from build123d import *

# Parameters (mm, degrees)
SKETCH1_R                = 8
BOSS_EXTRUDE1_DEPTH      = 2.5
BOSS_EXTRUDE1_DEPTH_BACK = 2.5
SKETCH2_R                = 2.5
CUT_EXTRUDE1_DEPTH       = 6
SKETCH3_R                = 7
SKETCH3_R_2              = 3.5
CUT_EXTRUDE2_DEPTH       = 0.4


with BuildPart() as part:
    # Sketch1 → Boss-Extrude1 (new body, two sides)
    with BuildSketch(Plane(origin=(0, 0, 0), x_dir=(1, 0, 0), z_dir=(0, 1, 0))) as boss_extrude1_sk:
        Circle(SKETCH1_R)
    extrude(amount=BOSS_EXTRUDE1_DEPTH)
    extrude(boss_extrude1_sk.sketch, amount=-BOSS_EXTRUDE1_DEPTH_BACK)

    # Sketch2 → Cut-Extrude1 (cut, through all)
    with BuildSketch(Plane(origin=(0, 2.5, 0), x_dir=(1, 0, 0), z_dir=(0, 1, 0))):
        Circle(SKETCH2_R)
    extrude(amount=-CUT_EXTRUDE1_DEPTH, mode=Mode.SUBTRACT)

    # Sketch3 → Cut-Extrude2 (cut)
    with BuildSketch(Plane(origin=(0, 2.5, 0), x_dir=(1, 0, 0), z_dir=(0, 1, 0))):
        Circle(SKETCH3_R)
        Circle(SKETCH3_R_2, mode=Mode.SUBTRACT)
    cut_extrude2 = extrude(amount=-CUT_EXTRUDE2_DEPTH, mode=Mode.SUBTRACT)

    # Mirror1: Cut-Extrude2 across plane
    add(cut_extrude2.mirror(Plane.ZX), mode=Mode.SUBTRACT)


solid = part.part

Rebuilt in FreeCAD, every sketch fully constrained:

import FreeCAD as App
import Part
import Sketcher

V = App.Vector
Q = App.Units.Quantity

doc = App.newDocument("Part")
params = doc.addObject("Spreadsheet::Sheet", "Params")
for row, (alias, value) in enumerate([
    ("sketch1_diameter", "16 mm"),
    ("pad1_length", "2.5 mm"),
    ("pad1_length2", "2.5 mm"),
    ("sketch2_diameter", "5 mm"),
    ("sketch3_diameter", "14 mm"),
    ("sketch3_diameter2", "7 mm"),
    ("pocket2_length", "0.4 mm"),
], start=1):
    params.set(f"A{row}", alias)
    params.set(f"B{row}", "=" + value)
    params.setAlias(f"B{row}", alias)

body = doc.addObject("PartDesign::Body", "Body")

sketch1 = body.newObject("Sketcher::SketchObject", "Sketch")
sketch1.AttachmentSupport = (doc.getObject("XZ_Plane"), [""])
sketch1.MapMode = "FlatFace"
sketch1.addGeometry(Part.Circle(V(0, 0, 0), V(0, 0, 1), 8), False)
sketch1.addConstraint(Sketcher.Constraint("Coincident", 0, 3, -1, 1))
sketch1.addConstraint(Sketcher.Constraint("Diameter", 0, Q("16 mm")))
sketch1.setExpression("Constraints[1]", "Params.sketch1_diameter")
pad1 = body.newObject("PartDesign::Pad", "Pad")
pad1.Profile = sketch1
pad1.Type = "TwoLengths"
pad1.setExpression("Length", "Params.pad1_length")
pad1.setExpression("Length2", "Params.pad1_length2")
pad1.Reversed = True

sketch2 = body.newObject("Sketcher::SketchObject", "Sketch001")
sketch2.AttachmentSupport = (doc.getObject("XZ_Plane"), [""])
sketch2.MapMode = "FlatFace"
sketch2.AttachmentOffset = App.Placement(V(0, 0, -2.5), App.Rotation())
sketch2.addGeometry(Part.Circle(V(0, 0, 0), V(0, 0, 1), 2.5), False)
sketch2.addConstraint(Sketcher.Constraint("Coincident", 0, 3, -1, 1))
sketch2.addConstraint(Sketcher.Constraint("Diameter", 0, Q("5 mm")))
sketch2.setExpression("Constraints[1]", "Params.sketch2_diameter")
pocket1 = body.newObject("PartDesign::Pocket", "Pocket")
pocket1.Profile = sketch2
pocket1.Type = "ThroughAll"
pocket1.Reversed = True

sketch3 = body.newObject("Sketcher::SketchObject", "Sketch002")
sketch3.AttachmentSupport = (doc.getObject("XZ_Plane"), [""])
sketch3.MapMode = "FlatFace"
sketch3.AttachmentOffset = App.Placement(V(0, 0, -2.5), App.Rotation())
sketch3.addGeometry(Part.Circle(V(0, 0, 0), V(0, 0, 1), 7), False)
sketch3.addGeometry(Part.Circle(V(0, 0, 0), V(0, 0, 1), 3.5), False)
sketch3.addConstraint(Sketcher.Constraint("Coincident", 0, 3, -1, 1))
sketch3.addConstraint(Sketcher.Constraint("Coincident", 1, 3, -1, 1))
sketch3.addConstraint(Sketcher.Constraint("Diameter", 0, Q("14 mm")))
sketch3.addConstraint(Sketcher.Constraint("Diameter", 1, Q("7 mm")))
sketch3.setExpression("Constraints[2]", "Params.sketch3_diameter")
sketch3.setExpression("Constraints[3]", "Params.sketch3_diameter2")
pocket2 = body.newObject("PartDesign::Pocket", "Pocket001")
pocket2.Profile = sketch3
pocket2.setExpression("Length", "Params.pocket2_length")
pocket2.Reversed = True
doc.recompute()

mirrored = body.newObject("PartDesign::Mirrored", "Mirrored")
mirrored.Originals = [pocket2]
mirrored.MirrorPlane = (doc.getObject("XZ_Plane"), [""])
body.Tip = mirrored

doc.recompute()
